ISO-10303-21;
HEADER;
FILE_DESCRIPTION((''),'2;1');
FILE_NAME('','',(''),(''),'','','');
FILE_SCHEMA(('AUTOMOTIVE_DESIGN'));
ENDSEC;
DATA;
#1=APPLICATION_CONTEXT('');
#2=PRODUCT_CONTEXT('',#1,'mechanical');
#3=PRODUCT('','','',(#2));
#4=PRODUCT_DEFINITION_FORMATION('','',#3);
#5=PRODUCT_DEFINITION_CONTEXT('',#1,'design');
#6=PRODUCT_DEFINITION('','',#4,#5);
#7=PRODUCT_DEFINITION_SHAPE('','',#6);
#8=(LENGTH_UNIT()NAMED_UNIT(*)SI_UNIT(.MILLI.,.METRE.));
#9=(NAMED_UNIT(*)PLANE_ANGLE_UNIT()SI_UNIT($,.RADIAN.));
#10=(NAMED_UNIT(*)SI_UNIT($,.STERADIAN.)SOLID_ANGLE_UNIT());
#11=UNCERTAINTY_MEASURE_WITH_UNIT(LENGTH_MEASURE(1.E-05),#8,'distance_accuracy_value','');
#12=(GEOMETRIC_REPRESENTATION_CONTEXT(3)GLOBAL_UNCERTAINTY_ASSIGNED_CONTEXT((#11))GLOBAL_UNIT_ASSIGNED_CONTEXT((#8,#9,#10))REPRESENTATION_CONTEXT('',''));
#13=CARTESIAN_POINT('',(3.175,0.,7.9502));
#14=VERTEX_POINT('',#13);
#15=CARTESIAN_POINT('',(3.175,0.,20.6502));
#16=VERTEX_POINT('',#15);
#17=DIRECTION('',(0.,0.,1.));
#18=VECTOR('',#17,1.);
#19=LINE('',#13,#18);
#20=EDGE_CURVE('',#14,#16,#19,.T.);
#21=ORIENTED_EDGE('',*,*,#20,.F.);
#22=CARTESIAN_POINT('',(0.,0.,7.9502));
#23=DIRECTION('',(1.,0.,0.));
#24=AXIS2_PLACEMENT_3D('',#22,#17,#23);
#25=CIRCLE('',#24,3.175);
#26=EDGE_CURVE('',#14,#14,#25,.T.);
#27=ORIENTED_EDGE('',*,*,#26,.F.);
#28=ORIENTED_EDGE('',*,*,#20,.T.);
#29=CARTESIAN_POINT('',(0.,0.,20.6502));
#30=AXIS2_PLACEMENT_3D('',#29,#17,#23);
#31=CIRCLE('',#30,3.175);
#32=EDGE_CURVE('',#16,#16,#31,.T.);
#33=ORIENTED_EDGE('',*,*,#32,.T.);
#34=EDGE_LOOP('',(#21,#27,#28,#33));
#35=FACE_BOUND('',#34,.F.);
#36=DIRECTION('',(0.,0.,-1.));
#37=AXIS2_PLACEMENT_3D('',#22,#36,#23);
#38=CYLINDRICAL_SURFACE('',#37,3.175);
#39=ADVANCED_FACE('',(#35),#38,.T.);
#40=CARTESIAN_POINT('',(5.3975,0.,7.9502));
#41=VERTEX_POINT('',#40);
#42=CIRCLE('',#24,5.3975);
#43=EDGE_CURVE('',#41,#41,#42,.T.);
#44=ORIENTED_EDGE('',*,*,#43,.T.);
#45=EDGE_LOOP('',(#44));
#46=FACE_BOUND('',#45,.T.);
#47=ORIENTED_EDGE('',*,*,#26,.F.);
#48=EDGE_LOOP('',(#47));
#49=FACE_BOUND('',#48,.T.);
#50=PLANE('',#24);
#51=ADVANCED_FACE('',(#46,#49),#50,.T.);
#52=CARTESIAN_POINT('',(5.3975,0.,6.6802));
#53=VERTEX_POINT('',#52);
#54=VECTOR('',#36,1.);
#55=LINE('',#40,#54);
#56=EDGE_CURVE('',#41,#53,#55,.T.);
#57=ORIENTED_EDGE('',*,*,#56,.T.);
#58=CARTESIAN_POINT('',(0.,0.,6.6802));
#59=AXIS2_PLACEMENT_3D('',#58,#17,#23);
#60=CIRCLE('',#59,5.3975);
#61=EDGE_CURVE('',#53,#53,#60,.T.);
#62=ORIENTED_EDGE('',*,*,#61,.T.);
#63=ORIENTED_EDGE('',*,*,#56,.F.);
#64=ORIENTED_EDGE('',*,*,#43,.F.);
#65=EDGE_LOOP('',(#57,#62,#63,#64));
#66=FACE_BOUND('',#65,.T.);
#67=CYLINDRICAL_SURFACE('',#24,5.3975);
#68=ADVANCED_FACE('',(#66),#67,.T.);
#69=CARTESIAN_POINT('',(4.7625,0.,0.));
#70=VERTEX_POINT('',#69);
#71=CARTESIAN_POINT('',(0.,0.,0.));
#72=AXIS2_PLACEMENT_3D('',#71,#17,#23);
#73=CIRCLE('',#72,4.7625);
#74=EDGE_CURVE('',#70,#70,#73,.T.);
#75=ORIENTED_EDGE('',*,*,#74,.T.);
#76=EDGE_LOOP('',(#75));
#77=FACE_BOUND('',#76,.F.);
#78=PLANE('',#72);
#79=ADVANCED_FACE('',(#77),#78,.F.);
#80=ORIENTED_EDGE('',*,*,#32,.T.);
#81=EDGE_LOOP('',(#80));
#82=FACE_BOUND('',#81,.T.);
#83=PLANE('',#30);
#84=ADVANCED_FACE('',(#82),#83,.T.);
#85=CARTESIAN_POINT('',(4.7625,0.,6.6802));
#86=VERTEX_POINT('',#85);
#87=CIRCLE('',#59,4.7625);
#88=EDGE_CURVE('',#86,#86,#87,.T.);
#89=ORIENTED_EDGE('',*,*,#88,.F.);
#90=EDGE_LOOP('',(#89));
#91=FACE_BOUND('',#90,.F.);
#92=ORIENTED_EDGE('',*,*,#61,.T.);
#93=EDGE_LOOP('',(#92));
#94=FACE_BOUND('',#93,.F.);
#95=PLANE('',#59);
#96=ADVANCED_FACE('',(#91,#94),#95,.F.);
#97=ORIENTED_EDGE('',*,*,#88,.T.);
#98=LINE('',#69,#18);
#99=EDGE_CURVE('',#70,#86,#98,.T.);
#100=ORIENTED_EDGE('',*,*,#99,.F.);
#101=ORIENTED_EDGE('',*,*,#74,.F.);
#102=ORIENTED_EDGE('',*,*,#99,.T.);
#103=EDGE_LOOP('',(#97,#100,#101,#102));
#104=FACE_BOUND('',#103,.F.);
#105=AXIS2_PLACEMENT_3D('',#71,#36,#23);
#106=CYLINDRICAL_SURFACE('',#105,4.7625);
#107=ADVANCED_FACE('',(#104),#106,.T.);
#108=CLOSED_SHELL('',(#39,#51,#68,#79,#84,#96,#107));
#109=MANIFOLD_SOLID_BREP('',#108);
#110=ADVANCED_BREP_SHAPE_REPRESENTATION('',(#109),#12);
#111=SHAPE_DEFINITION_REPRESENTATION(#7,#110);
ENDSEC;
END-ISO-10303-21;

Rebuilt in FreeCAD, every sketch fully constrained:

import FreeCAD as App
import Part
import Sketcher
from FreeCAD import Vector
Q = App.Units.Quantity

doc = App.newDocument("Part")
body = doc.addObject("PartDesign::Body", "Body")

sketch1 = body.newObject("Sketcher::SketchObject", "Sketch")
sketch1.AttachmentSupport = (doc.getObject("XY_Plane"), [""])
sketch1.MapMode = "FlatFace"
sketch1.addGeometry(Part.Circle(Vector(0, 0, 0), Vector(0, 0, 1), 4.7625), False)
sketch1.addConstraint([
    Sketcher.Constraint("Coincident", 0, 3, -1, 1),
    Sketcher.Constraint("Diameter", 0, Q("0.375 in")),
])
pad1 = body.newObject("PartDesign::Pad", "Pad")
pad1.Profile = sketch1
pad1.Length = Q("0.313 in")

sketch2 = body.newObject("Sketcher::SketchObject", "Sketch001")
sketch2.AttachmentSupport = (doc.getObject("XY_Plane"), [""])
sketch2.MapMode = "FlatFace"
sketch2.AttachmentOffset = App.Placement(Vector(0, 0, 0.313 * 25.4), App.Rotation())
sketch2.addGeometry([
    Part.Circle(Vector(0, 0, 0), Vector(0, 0, 1), 5.3975),
    Part.Circle(Vector(0, 0, 0), Vector(0, 0, 1), 4.7625),
], False)
sketch2.addConstraint([
    Sketcher.Constraint("Coincident", 0, 3, -1, 1),
    Sketcher.Constraint("Coincident", 1, 3, -1, 1),
    Sketcher.Constraint("Diameter", 0, Q("0.425 in")),
    Sketcher.Constraint("Diameter", 1, Q("0.375 in")),
])
pad2 = body.newObject("PartDesign::Pad", "Pad001")
pad2.Profile = sketch2
pad2.Length = Q("0.05 in")
pad2.Reversed = True

sketch3 = body.newObject("Sketcher::SketchObject", "Sketch002")
sketch3.AttachmentSupport = (doc.getObject("XY_Plane"), [""])
sketch3.MapMode = "FlatFace"
sketch3.AttachmentOffset = App.Placement(Vector(0, 0, 0.313 * 25.4), App.Rotation())
sketch3.addGeometry(Part.Circle(Vector(0, 0, 0), Vector(0, 0, 1), 3.175), False)
sketch3.addConstraint([
    Sketcher.Constraint("Coincident", 0, 3, -1, 1),
    Sketcher.Constraint("Diameter", 0, Q("0.25 in")),
])
pad3 = body.newObject("PartDesign::Pad", "Pad002")
pad3.Profile = sketch3
pad3.Length = Q("0.5 in")

doc.recompute()
